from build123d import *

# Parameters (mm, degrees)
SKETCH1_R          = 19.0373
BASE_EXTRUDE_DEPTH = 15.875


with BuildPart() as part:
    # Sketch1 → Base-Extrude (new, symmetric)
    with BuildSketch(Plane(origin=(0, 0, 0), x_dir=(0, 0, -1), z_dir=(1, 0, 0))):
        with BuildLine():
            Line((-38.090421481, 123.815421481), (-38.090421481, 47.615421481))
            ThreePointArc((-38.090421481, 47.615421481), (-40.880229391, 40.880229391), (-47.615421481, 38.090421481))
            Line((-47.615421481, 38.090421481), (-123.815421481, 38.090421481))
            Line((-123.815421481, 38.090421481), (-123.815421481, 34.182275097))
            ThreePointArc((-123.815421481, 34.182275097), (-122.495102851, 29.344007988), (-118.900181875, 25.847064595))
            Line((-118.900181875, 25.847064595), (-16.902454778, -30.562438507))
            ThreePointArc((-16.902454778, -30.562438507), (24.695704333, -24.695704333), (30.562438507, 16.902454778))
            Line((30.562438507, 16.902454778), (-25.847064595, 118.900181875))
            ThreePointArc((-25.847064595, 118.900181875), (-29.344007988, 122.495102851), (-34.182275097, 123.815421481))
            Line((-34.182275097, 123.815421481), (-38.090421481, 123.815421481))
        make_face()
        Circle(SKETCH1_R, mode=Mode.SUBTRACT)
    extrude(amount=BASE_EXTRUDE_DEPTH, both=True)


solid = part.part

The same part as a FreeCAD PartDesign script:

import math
import FreeCAD as App
import Part
import Sketcher
Q = App.Units.Quantity

doc = App.newDocument("Part")
params = doc.addObject("Spreadsheet::Sheet", "Params")
for row, (alias, value) in enumerate([
    ("sketch1_width", "3 in"),
    ("sketch1_diameter", "1.499 in"),
    ("sketch1_radius", "0.375 in"),
    ("sketch1_radius2", "1.375 in"),
    ("pad1_length", "1.25 in"),
], start=1):
    params.set(f"A{row}", alias)
    params.set(f"B{row}", "=" + value)
    params.setAlias(f"B{row}", alias)

body = doc.addObject("PartDesign::Body", "Body")

# Sketch on YZ plane
sketch1 = body.newObject("Sketcher::SketchObject", "Sketch")
sketch1.AttachmentSupport = (doc.getObject("YZ_Plane"), [""])
sketch1.MapMode = "FlatFace"
sketch1.addGeometry([
    Part.LineSegment(App.Vector(123.8, 38.1, 0), App.Vector(47.6, 38.1, 0)),  # 0
    Part.ArcOfCircle(Part.Circle(App.Vector(47.6, 47.6, 0), App.Vector(0, 0, 1), 9.5), math.radians(-180), math.radians(-90)),  # 1
    Part.LineSegment(App.Vector(38.1, 47.6, 0), App.Vector(38.1, 123.8, 0)),  # 2
    Part.LineSegment(App.Vector(38.1, 123.8, 0), App.Vector(34.2, 123.8, 0)),  # 3
    Part.ArcOfCircle(Part.Circle(App.Vector(34.2, 114.3, 0), App.Vector(0, 0, 1), 9.5), math.radians(90), math.radians(151)),  # 4
    Part.LineSegment(App.Vector(25.8, 118.9, 0), App.Vector(-30.6, 16.9, 0)),  # 5
    Part.ArcOfCircle(Part.Circle(App.Vector(0, 0, 0), App.Vector(0, 0, 1), 34.9), math.radians(151), math.radians(299)),  # 6
    Part.LineSegment(App.Vector(16.9, -30.6, 0), App.Vector(118.9, 25.8, 0)),  # 7
    Part.ArcOfCircle(Part.Circle(App.Vector(114.3, 34.2, 0), App.Vector(0, 0, 1), 9.5), math.radians(-61), math.radians(0)),  # 8
    Part.LineSegment(App.Vector(123.8, 34.2, 0), App.Vector(123.8, 38.1, 0)),  # 9
    Part.Circle(App.Vector(0, 0, 0), App.Vector(0, 0, 1), 19),  # 10
], False)
sketch1.addConstraint([
    Sketcher.Constraint("Tangent", 0, 2, 1, 2),
    Sketcher.Constraint("Tangent", 1, 1, 2, 1),
    Sketcher.Constraint("Coincident", 2, 2, 3, 1),
    Sketcher.Constraint("Tangent", 3, 2, 4, 1),
    Sketcher.Constraint("Tangent", 4, 2, 5, 1),
    Sketcher.Constraint("Tangent", 5, 2, 6, 1),
    Sketcher.Constraint("Tangent", 6, 2, 7, 1),
    Sketcher.Constraint("Tangent", 7, 2, 8, 1),
    Sketcher.Constraint("Tangent", 8, 2, 9, 1),
    Sketcher.Constraint("Coincident", 9, 2, 0, 1),
    Sketcher.Constraint("Horizontal", 0),
    Sketcher.Constraint("Vertical", 2),
    Sketcher.Constraint("Horizontal", 3),
    Sketcher.Constraint("Vertical", 9),
    Sketcher.Constraint("Coincident", 6, 3, -1, 1),
    Sketcher.Constraint("Coincident", 10, 3, -1, 1),
    Sketcher.Constraint("Equal", 1, 4),
    Sketcher.Constraint("Equal", 4, 8),
    Sketcher.Constraint("Equal", 0, 2),
    Sketcher.Constraint("Equal", 3, 9),
    Sketcher.Constraint("Equal", 5, 7),
    Sketcher.Constraint("DistanceX", 0, 2, 0, 1, Q("3 in")),
    Sketcher.Constraint("Diameter", 10, Q("1.499 in")),
    Sketcher.Constraint("Radius", 1, Q("0.375 in")),
    Sketcher.Constraint("Radius", 6, Q("1.375 in")),
    Sketcher.Constraint("DistanceX", 3, 2, 3, 1, 3.908146),
    Sketcher.Constraint("DistanceX", -1, 1, 1, 3, 47.615421),
])
sketch1.setExpression("Constraints[21]", "Params.sketch1_width")
sketch1.setExpression("Constraints[22]", "Params.sketch1_diameter")
sketch1.setExpression("Constraints[23]", "Params.sketch1_radius")
sketch1.setExpression("Constraints[24]", "Params.sketch1_radius2")
pad1 = body.newObject("PartDesign::Pad", "Pad")
pad1.Profile = sketch1
pad1.setExpression("Length", "Params.pad1_length")
pad1.Midplane = True

doc.recompute()
